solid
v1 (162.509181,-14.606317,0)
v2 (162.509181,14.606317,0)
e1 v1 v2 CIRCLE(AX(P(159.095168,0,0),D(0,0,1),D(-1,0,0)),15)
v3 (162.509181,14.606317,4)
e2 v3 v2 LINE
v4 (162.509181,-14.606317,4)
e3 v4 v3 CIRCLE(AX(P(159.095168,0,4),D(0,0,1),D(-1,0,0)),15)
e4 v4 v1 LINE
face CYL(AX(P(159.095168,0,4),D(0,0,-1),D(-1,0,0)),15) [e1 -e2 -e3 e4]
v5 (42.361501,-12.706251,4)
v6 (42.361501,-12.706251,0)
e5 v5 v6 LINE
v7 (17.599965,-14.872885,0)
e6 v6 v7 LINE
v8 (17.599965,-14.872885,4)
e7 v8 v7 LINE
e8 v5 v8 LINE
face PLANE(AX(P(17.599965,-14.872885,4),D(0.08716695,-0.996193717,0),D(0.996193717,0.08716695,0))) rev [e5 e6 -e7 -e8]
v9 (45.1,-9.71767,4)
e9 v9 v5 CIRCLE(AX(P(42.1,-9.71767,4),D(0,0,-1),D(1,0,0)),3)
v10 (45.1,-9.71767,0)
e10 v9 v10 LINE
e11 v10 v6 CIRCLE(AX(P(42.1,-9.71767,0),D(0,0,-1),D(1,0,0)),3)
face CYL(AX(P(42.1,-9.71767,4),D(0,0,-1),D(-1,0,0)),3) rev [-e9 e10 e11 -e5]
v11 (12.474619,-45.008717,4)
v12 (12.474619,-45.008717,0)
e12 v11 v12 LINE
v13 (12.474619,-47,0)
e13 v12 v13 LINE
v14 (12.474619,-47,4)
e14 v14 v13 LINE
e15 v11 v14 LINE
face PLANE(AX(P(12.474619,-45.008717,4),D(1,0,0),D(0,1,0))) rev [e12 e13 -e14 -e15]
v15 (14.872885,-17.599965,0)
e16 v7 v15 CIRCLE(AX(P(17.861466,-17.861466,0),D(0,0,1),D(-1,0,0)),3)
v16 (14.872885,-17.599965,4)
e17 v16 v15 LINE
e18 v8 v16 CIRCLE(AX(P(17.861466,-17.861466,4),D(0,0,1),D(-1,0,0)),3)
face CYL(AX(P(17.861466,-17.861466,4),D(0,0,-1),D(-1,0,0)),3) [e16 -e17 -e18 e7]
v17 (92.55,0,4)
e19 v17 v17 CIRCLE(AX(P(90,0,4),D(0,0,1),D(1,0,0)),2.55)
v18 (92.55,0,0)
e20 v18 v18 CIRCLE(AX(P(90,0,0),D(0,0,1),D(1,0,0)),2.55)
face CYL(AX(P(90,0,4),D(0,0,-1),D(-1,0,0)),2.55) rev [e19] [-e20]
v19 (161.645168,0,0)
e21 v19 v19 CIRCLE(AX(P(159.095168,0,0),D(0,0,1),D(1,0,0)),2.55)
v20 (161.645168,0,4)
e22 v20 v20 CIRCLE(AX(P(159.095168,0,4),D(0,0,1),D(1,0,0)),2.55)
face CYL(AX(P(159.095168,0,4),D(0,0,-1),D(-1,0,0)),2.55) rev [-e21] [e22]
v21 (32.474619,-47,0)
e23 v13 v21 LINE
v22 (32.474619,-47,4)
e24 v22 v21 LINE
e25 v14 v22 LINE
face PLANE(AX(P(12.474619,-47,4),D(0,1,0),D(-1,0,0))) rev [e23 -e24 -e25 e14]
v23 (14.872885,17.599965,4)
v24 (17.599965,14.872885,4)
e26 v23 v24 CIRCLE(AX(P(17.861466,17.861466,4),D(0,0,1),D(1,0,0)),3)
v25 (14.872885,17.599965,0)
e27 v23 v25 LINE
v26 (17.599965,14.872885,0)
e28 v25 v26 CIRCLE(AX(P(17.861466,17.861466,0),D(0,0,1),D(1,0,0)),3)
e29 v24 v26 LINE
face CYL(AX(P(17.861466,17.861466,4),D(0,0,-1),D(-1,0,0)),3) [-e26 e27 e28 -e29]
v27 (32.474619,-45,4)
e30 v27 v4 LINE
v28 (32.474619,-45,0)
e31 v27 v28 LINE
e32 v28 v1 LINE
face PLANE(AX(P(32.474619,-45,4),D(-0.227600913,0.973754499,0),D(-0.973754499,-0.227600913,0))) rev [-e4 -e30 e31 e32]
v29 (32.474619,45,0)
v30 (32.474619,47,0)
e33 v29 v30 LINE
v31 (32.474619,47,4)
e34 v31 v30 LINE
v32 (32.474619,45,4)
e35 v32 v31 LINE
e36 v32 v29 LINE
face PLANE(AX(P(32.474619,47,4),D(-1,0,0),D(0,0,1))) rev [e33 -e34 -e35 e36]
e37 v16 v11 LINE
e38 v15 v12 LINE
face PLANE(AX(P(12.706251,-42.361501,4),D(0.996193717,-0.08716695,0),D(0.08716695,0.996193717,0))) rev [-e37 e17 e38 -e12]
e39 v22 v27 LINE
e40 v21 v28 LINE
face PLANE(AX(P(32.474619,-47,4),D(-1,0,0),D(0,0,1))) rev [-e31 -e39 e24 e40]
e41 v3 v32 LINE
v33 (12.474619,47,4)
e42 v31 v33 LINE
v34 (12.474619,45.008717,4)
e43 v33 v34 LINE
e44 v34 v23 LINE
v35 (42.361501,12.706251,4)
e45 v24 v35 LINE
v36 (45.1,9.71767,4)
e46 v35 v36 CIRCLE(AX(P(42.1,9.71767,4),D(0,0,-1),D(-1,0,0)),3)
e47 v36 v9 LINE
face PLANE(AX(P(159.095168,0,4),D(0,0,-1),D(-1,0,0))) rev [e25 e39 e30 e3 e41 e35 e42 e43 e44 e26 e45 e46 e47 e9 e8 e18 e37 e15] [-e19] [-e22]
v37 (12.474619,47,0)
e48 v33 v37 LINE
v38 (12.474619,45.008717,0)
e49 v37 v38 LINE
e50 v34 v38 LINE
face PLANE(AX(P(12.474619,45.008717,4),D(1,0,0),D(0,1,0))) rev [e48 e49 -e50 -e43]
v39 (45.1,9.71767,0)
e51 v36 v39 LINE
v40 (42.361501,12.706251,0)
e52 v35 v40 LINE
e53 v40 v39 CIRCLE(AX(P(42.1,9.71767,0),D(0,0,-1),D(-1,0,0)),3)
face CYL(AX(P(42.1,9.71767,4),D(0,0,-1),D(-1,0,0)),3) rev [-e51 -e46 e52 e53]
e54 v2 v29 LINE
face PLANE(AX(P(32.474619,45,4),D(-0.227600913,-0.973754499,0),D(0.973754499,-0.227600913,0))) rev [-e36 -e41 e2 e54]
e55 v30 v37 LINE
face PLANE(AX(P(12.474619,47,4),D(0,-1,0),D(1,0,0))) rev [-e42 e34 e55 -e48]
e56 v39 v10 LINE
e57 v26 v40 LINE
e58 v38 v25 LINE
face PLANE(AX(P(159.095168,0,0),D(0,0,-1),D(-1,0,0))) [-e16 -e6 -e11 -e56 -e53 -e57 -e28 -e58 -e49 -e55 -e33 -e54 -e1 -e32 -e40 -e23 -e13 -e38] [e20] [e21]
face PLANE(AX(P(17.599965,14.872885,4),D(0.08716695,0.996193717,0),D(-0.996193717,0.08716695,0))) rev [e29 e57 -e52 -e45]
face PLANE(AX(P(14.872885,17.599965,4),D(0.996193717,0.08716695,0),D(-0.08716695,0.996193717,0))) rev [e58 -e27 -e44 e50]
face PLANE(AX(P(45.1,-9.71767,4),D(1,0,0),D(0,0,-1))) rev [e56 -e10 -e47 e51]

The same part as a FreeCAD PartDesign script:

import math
import FreeCAD as App
import Part
import Sketcher

V = App.Vector

doc = App.newDocument("Part")
body = doc.addObject("PartDesign::Body", "Body")

# Sketch on XY plane
sketch1 = body.newObject("Sketcher::SketchObject", "Sketch")
sketch1.AttachmentSupport = (doc.getObject("XY_Plane"), [""])
sketch1.MapMode = "FlatFace"
sketch1.addGeometry(Part.LineSegment(V(12.706251, 42.361501, 0), V(14.872885, 17.599965, 0)), False)
sketch1.addGeometry(Part.ArcOfCircle(Part.Circle(V(17.861466, 17.861466, 0), V(0, 0, 1), 3), math.radians(-174.999355), math.radians(-95.000645)), False)
sketch1.addGeometry(Part.LineSegment(V(17.599965, 14.872885, 0), V(42.361501, 12.706251, 0)), False)
sketch1.addGeometry(Part.ArcOfCircle(Part.Circle(V(42.1, 9.71767, 0), V(0, 0, 1), 3), math.radians(0), math.radians(84.999355)), False)
sketch1.addGeometry(Part.LineSegment(V(45.1, 9.71767, 0), V(45.1, -9.71767, 0)), False)
sketch1.addGeometry(Part.ArcOfCircle(Part.Circle(V(42.1, -9.71767, 0), V(0, 0, 1), 3), math.radians(-84.999355), math.radians(0)), False)
sketch1.addGeometry(Part.LineSegment(V(42.361501, -12.706251, 0), V(17.599965, -14.872885, 0)), False)
sketch1.addGeometry(Part.ArcOfCircle(Part.Circle(V(17.861466, -17.861466, 0), V(0, 0, 1), 3), math.radians(95.000645), math.radians(174.999355)), False)
sketch1.addGeometry(Part.LineSegment(V(14.872885, -17.599965, 0), V(12.706251, -42.361501, 0)), False)
sketch1.addGeometry(Part.LineSegment(V(12.706251, -42.361501, 0), V(12.474619, -45.008717, 0)), False)
sketch1.addGeometry(Part.LineSegment(V(12.474619, -45.008717, 0), V(12.474619, -47, 0)), False)
sketch1.addGeometry(Part.LineSegment(V(12.474619, -47, 0), V(32.474619, -47, 0)), False)
sketch1.addGeometry(Part.LineSegment(V(32.474619, -47, 0), V(32.474619, -45, 0)), False)
sketch1.addGeometry(Part.LineSegment(V(32.474619, -45, 0), V(162.509181, -14.606317, 0)), False)
sketch1.addGeometry(Part.ArcOfCircle(Part.Circle(V(159.095168, 0, 0), V(0, 0, 1), 15), math.radians(-76.844131), math.radians(76.844131)), False)
sketch1.addGeometry(Part.LineSegment(V(162.509181, 14.606317, 0), V(32.474619, 45, 0)), False)
sketch1.addGeometry(Part.LineSegment(V(32.474619, 45, 0), V(32.474619, 47, 0)), False)
sketch1.addGeometry(Part.LineSegment(V(32.474619, 47, 0), V(12.474619, 47, 0)), False)
sketch1.addGeometry(Part.LineSegment(V(12.474619, 47, 0), V(12.474619, 45.008717, 0)), False)
sketch1.addGeometry(Part.LineSegment(V(12.474619, 45.008717, 0), V(12.706251, 42.361501, 0)), False)
sketch1.addGeometry(Part.Circle(V(159.095168, 0, 0), V(0, 0, 1), 2.55), False)
sketch1.addGeometry(Part.Circle(V(90, 0, 0), V(0, 0, 1), 2.55), False)
sketch1.addConstraint(Sketcher.Constraint("Tangent", 0, 2, 1, 1))
sketch1.addConstraint(Sketcher.Constraint("Tangent", 1, 2, 2, 1))
sketch1.addConstraint(Sketcher.Constraint("Tangent", 2, 2, 3, 2))
sketch1.addConstraint(Sketcher.Constraint("Tangent", 3, 1, 4, 1))
sketch1.addConstraint(Sketcher.Constraint("Tangent", 4, 2, 5, 2))
sketch1.addConstraint(Sketcher.Constraint("Tangent", 5, 1, 6, 1))
sketch1.addConstraint(Sketcher.Constraint("Tangent", 6, 2, 7, 1))
sketch1.addConstraint(Sketcher.Constraint("Tangent", 7, 2, 8, 1))
sketch1.addConstraint(Sketcher.Constraint("Coincident", 8, 2, 9, 1))
sketch1.addConstraint(Sketcher.Constraint("Coincident", 9, 2, 10, 1))
sketch1.addConstraint(Sketcher.Constraint("Coincident", 10, 2, 11, 1))
sketch1.addConstraint(Sketcher.Constraint("Coincident", 11, 2, 12, 1))
sketch1.addConstraint(Sketcher.Constraint("Coincident", 12, 2, 13, 1))
sketch1.addConstraint(Sketcher.Constraint("Tangent", 13, 2, 14, 1))
sketch1.addConstraint(Sketcher.Constraint("Tangent", 14, 2, 15, 1))
sketch1.addConstraint(Sketcher.Constraint("Coincident", 15, 2, 16, 1))
sketch1.addConstraint(Sketcher.Constraint("Coincident", 16, 2, 17, 1))
sketch1.addConstraint(Sketcher.Constraint("Coincident", 17, 2, 18, 1))
sketch1.addConstraint(Sketcher.Constraint("Coincident", 18, 2, 19, 1))
sketch1.addConstraint(Sketcher.Constraint("Coincident", 19, 2, 0, 1))
sketch1.addConstraint(Sketcher.Constraint("Vertical", 4))
sketch1.addConstraint(Sketcher.Constraint("Vertical", 10))
sketch1.addConstraint(Sketcher.Constraint("Horizontal", 11))
sketch1.addConstraint(Sketcher.Constraint("Vertical", 12))
sketch1.addConstraint(Sketcher.Constraint("Vertical", 16))
sketch1.addConstraint(Sketcher.Constraint("Horizontal", 17))
sketch1.addConstraint(Sketcher.Constraint("Vertical", 18))
sketch1.addConstraint(Sketcher.Constraint("Coincident", 20, 3, 14, 3))
sketch1.addConstraint(Sketcher.Constraint("Equal", 1, 3))
sketch1.addConstraint(Sketcher.Constraint("Equal", 3, 5))
sketch1.addConstraint(Sketcher.Constraint("Equal", 5, 7))
sketch1.addConstraint(Sketcher.Constraint("Equal", 20, 21))
sketch1.addConstraint(Sketcher.Constraint("Symmetric", 1, 3, 7, 3, -1))
sketch1.addConstraint(Sketcher.Constraint("Symmetric", 13, 2, 14, 2, -1))
sketch1.addConstraint(Sketcher.Constraint("Symmetric", 11, 2, 16, 2, -1))
sketch1.addConstraint(Sketcher.Constraint("Symmetric", 9, 2, 18, 2, -1))
sketch1.addConstraint(Sketcher.Constraint("Symmetric", 8, 2, 19, 2, -1))
sketch1.addConstraint(Sketcher.Constraint("PointOnObject", 21, 3, -1))
sketch1.addConstraint(Sketcher.Constraint("Perpendicular", 0, 6))
sketch1.addConstraint(Sketcher.Constraint("Perpendicular", 2, 8))
sketch1.addConstraint(Sketcher.Constraint("Parallel", 8, 9))
sketch1.addConstraint(Sketcher.Constraint("Equal", 0, 2))
sketch1.addConstraint(Sketcher.Constraint("Radius", 1, 3.0))
sketch1.addConstraint(Sketcher.Constraint("Radius", 14, 15.0))
sketch1.addConstraint(Sketcher.Constraint("Diameter", 20, 5.1))
sketch1.addConstraint(Sketcher.Constraint("DistanceX", 11, 1, 11, 2, 20.0))
sketch1.addConstraint(Sketcher.Constraint("DistanceY", 12, 1, 12, 2, 2.0))
sketch1.addConstraint(Sketcher.Constraint("DistanceX", -1, 1, 21, 3, 90.0))
sketch1.addConstraint(Sketcher.Constraint("DistanceY", 10, 2, -1, 1, 47.0))
sketch1.addConstraint(Sketcher.Constraint("DistanceX", -1, 1, 3, 3, 42.1))
sketch1.addConstraint(Sketcher.Constraint("DistanceY", 4, 2, 4, 1, 19.435339))
sketch1.addConstraint(Sketcher.Constraint("DistanceX", -1, 1, 2, 2, 42.361501))
sketch1.addConstraint(Sketcher.Constraint("DistanceY", 8, 2, -1, 1, 42.361501))
sketch1.addConstraint(Sketcher.Constraint("DistanceX", 1, 3, 14, 3, 141.233702))
sketch1.addConstraint(Sketcher.Constraint("Distance", 9, 2.65733))
pad1 = body.newObject("PartDesign::Pad", "Pad")
pad1.Profile = sketch1
pad1.Length = 4

doc.recompute()
